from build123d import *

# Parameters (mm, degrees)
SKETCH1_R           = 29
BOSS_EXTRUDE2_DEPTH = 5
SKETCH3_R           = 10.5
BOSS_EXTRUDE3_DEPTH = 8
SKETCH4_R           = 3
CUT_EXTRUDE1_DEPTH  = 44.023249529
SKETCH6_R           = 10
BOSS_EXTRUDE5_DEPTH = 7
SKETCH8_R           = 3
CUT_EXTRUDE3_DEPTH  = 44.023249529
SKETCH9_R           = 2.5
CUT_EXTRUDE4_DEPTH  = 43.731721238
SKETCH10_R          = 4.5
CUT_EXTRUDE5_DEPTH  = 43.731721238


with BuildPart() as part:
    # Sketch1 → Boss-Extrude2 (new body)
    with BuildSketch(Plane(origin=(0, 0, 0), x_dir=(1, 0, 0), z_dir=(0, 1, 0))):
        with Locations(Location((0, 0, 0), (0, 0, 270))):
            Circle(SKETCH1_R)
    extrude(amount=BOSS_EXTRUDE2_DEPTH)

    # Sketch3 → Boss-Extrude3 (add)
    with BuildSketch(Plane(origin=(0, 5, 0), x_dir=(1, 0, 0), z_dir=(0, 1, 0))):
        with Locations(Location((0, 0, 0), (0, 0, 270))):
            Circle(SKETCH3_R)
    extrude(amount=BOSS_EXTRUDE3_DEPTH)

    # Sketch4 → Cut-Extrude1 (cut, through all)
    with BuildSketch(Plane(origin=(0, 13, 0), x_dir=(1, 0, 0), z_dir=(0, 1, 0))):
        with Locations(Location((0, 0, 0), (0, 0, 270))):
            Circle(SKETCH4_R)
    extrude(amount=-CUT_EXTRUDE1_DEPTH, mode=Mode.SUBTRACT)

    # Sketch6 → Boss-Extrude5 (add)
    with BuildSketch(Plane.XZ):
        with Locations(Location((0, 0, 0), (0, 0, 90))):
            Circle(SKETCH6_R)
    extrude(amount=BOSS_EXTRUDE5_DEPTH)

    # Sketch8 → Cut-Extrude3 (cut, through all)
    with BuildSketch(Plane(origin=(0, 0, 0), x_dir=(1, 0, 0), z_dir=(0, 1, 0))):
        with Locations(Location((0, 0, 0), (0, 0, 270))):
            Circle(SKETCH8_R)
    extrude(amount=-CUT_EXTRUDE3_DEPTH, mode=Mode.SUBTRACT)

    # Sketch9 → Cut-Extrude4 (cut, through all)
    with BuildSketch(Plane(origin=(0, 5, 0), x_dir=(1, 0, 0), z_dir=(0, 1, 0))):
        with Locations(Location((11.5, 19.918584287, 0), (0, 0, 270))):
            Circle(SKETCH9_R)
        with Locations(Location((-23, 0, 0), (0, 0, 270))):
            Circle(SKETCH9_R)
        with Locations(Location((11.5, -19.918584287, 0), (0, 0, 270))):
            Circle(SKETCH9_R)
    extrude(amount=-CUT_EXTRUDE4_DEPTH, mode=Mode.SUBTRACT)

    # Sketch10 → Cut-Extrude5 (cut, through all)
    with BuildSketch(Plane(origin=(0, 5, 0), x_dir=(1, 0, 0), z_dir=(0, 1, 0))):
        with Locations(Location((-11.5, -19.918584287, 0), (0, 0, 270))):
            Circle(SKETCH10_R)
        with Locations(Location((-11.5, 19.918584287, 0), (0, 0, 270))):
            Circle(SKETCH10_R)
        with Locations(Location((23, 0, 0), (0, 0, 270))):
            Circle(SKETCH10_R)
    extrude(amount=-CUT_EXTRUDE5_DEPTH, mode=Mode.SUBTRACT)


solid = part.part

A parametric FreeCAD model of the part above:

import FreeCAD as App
import Part
import Sketcher

doc = App.newDocument("Part")
body = doc.addObject("PartDesign::Body", "Body")

sketch1 = body.newObject("Sketcher::SketchObject", "Sketch")
sketch1.AttachmentSupport = (doc.getObject("XZ_Plane"), [""])
sketch1.MapMode = "FlatFace"
sketch1.addGeometry(Part.Circle(App.Vector(0, 0, 0), App.Vector(0, 0, 1), 29), False)
sketch1.addConstraint(Sketcher.Constraint("Coincident", 0, 3, -1, 1))
sketch1.addConstraint(Sketcher.Constraint("Diameter", 0, 58.0))
pad1 = body.newObject("PartDesign::Pad", "Pad")
pad1.Profile = sketch1
pad1.Length = 5
pad1.Reversed = True

sketch2 = body.newObject("Sketcher::SketchObject", "Sketch001")
sketch2.AttachmentSupport = (doc.getObject("XZ_Plane"), [""])
sketch2.MapMode = "FlatFace"
sketch2.AttachmentOffset = App.Placement(App.Vector(0, 0, -5), App.Rotation())
sketch2.addGeometry(Part.Circle(App.Vector(0, 0, 0), App.Vector(0, 0, 1), 10), False)
sketch2.addConstraint(Sketcher.Constraint("Coincident", 0, 3, -1, 1))
sketch2.addConstraint(Sketcher.Constraint("Diameter", 0, 21.0))
pad2 = body.newObject("PartDesign::Pad", "Pad001")
pad2.Profile = sketch2
pad2.Length = 8
pad2.Reversed = True

sketch3 = body.newObject("Sketcher::SketchObject", "Sketch002")
sketch3.AttachmentSupport = (doc.getObject("XZ_Plane"), [""])
sketch3.MapMode = "FlatFace"
sketch3.AttachmentOffset = App.Placement(App.Vector(0, 0, -13), App.Rotation())
sketch3.addGeometry(Part.Circle(App.Vector(0, 0, 0), App.Vector(0, 0, 1), 3), False)
sketch3.addConstraint(Sketcher.Constraint("Coincident", 0, 3, -1, 1))
sketch3.addConstraint(Sketcher.Constraint("Diameter", 0, 6.0))
pocket1 = body.newObject("PartDesign::Pocket", "Pocket")
pocket1.Profile = sketch3
pocket1.Type = "ThroughAll"
pocket1.Reversed = True

sketch4 = body.newObject("Sketcher::SketchObject", "Sketch003")
sketch4.AttachmentSupport = (doc.getObject("XZ_Plane"), [""])
sketch4.MapMode = "FlatFace"
sketch4.addGeometry(Part.Circle(App.Vector(0, 0, 0), App.Vector(0, 0, 1), 10), False)
sketch4.addConstraint(Sketcher.Constraint("Coincident", 0, 3, -1, 1))
sketch4.addConstraint(Sketcher.Constraint("Diameter", 0, 20.0))
pad3 = body.newObject("PartDesign::Pad", "Pad002")
pad3.Profile = sketch4
pad3.Length = 7

sketch5 = body.newObject("Sketcher::SketchObject", "Sketch004")
sketch5.AttachmentSupport = (doc.getObject("XZ_Plane"), [""])
sketch5.MapMode = "FlatFace"
sketch5.addGeometry(Part.Circle(App.Vector(0, 0, 0), App.Vector(0, 0, 1), 3), False)
sketch5.addConstraint(Sketcher.Constraint("Coincident", 0, 3, -1, 1))
sketch5.addConstraint(Sketcher.Constraint("Diameter", 0, 6.0))
pocket2 = body.newObject("PartDesign::Pocket", "Pocket001")
pocket2.Profile = sketch5
pocket2.Type = "ThroughAll"
pocket2.Reversed = True

sketch6 = body.newObject("Sketcher::SketchObject", "Sketch005")
sketch6.AttachmentSupport = (doc.getObject("XZ_Plane"), [""])
sketch6.MapMode = "FlatFace"
sketch6.AttachmentOffset = App.Placement(App.Vector(0, 0, -5), App.Rotation())
sketch6.addGeometry(Part.Circle(App.Vector(11.5, -19.9, 0), App.Vector(0, 0, 1), 2.5), False)
sketch6.addGeometry(Part.Circle(App.Vector(-23, 0, 0), App.Vector(0, 0, 1), 2.5), False)
sketch6.addGeometry(Part.Circle(App.Vector(11.5, 19.9, 0), App.Vector(0, 0, 1), 2.5), False)
sketch6.addConstraint(Sketcher.Constraint("Equal", 0, 1))
sketch6.addConstraint(Sketcher.Constraint("Equal", 1, 2))
sketch6.addConstraint(Sketcher.Constraint("Symmetric", 0, 3, 2, 3, -1))
sketch6.addConstraint(Sketcher.Constraint("PointOnObject", 1, 3, -1))
sketch6.addConstraint(Sketcher.Constraint("Diameter", 0, 5.0))
sketch6.addConstraint(Sketcher.Constraint("DistanceX", 1, 3, -1, 1, 23.0))
sketch6.addConstraint(Sketcher.Constraint("DistanceX", -1, 1, 0, 3, 11.5))
sketch6.addConstraint(Sketcher.Constraint("DistanceY", 0, 3, 2, 3, 39.837169))
pocket3 = body.newObject("PartDesign::Pocket", "Pocket002")
pocket3.Profile = sketch6
pocket3.Type = "ThroughAll"
pocket3.Reversed = True

sketch7 = body.newObject("Sketcher::SketchObject", "Sketch006")
sketch7.AttachmentSupport = (doc.getObject("XZ_Plane"), [""])
sketch7.MapMode = "FlatFace"
sketch7.AttachmentOffset = App.Placement(App.Vector(0, 0, -5), App.Rotation())
sketch7.addGeometry(Part.Circle(App.Vector(-11.5, 19.9, 0), App.Vector(0, 0, 1), 4.5), False)
sketch7.addGeometry(Part.Circle(App.Vector(-11.5, -19.9, 0), App.Vector(0, 0, 1), 4.5), False)
sketch7.addGeometry(Part.Circle(App.Vector(23, 0, 0), App.Vector(0, 0, 1), 4.5), False)
sketch7.addConstraint(Sketcher.Constraint("Equal", 0, 1))
sketch7.addConstraint(Sketcher.Constraint("Equal", 1, 2))
sketch7.addConstraint(Sketcher.Constraint("Symmetric", 0, 3, 1, 3, -1))
sketch7.addConstraint(Sketcher.Constraint("PointOnObject", 2, 3, -1))
sketch7.addConstraint(Sketcher.Constraint("Diameter", 0, 9.0))
sketch7.addConstraint(Sketcher.Constraint("DistanceX", -1, 1, 2, 3, 23.0))
sketch7.addConstraint(Sketcher.Constraint("DistanceX", 0, 3, -1, 1, 11.5))
sketch7.addConstraint(Sketcher.Constraint("DistanceY", 1, 3, 0, 3, 39.837169))
pocket4 = body.newObject("PartDesign::Pocket", "Pocket003")
pocket4.Profile = sketch7
pocket4.Type = "ThroughAll"
pocket4.Reversed = True

doc.recompute()
